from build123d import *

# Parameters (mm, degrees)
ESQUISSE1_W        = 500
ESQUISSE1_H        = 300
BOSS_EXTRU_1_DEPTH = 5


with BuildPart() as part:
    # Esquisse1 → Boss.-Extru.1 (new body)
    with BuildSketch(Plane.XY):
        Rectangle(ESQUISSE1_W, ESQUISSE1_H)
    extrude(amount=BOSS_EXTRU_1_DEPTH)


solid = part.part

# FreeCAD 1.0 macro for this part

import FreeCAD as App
import Part
import Sketcher

V = App.Vector

doc = App.newDocument("Part")
params = doc.addObject("Spreadsheet::Sheet", "Params")
for row, (alias, value) in enumerate([
    ("sketch1_width", "500 mm"),
    ("sketch1_height", "300 mm"),
    ("pad1_length", "5 mm"),
], start=1):
    params.set(f"A{row}", alias)
    params.set(f"B{row}", "=" + value)
    params.setAlias(f"B{row}", alias)

body = doc.addObject("PartDesign::Body", "Body")

# Sketch on XY plane
sketch1 = body.newObject("Sketcher::SketchObject", "Sketch")
sketch1.AttachmentSupport = (doc.getObject("XY_Plane"), [""])
sketch1.MapMode = "FlatFace"
sketch1.addGeometry([
    Part.LineSegment(V(-250, 150, 0), V(-250, -150, 0)),
    Part.LineSegment(V(-250, -150, 0), V(250, -150, 0)),
    Part.LineSegment(V(250, -150, 0), V(250, 150, 0)),
    Part.LineSegment(V(250, 150, 0), V(-250, 150, 0)),
], False)
sketch1.addConstraint([
    Sketcher.Constraint("Coincident", 0, 2, 1, 1),
    Sketcher.Constraint("Coincident", 1, 2, 2, 1),
    Sketcher.Constraint("Coincident", 2, 2, 3, 1),
    Sketcher.Constraint("Coincident", 3, 2, 0, 1),
    Sketcher.Constraint("Vertical", 0),
    Sketcher.Constraint("Horizontal", 1),
    Sketcher.Constraint("Vertical", 2),
    Sketcher.Constraint("Horizontal", 3),
    Sketcher.Constraint("Symmetric", 0, 2, 2, 2, -1, 1),
    Sketcher.Constraint("DistanceX", 1, 1, 1, 2, 500.0),
    Sketcher.Constraint("DistanceY", 0, 2, 0, 1, 300.0),
])
sketch1.setExpression("Constraints[9]", "Params.sketch1_width")
sketch1.setExpression("Constraints[10]", "Params.sketch1_height")
pad1 = body.newObject("PartDesign::Pad", "Pad")
pad1.Profile = sketch1
pad1.setExpression("Length", "Params.pad1_length")

doc.recompute()
